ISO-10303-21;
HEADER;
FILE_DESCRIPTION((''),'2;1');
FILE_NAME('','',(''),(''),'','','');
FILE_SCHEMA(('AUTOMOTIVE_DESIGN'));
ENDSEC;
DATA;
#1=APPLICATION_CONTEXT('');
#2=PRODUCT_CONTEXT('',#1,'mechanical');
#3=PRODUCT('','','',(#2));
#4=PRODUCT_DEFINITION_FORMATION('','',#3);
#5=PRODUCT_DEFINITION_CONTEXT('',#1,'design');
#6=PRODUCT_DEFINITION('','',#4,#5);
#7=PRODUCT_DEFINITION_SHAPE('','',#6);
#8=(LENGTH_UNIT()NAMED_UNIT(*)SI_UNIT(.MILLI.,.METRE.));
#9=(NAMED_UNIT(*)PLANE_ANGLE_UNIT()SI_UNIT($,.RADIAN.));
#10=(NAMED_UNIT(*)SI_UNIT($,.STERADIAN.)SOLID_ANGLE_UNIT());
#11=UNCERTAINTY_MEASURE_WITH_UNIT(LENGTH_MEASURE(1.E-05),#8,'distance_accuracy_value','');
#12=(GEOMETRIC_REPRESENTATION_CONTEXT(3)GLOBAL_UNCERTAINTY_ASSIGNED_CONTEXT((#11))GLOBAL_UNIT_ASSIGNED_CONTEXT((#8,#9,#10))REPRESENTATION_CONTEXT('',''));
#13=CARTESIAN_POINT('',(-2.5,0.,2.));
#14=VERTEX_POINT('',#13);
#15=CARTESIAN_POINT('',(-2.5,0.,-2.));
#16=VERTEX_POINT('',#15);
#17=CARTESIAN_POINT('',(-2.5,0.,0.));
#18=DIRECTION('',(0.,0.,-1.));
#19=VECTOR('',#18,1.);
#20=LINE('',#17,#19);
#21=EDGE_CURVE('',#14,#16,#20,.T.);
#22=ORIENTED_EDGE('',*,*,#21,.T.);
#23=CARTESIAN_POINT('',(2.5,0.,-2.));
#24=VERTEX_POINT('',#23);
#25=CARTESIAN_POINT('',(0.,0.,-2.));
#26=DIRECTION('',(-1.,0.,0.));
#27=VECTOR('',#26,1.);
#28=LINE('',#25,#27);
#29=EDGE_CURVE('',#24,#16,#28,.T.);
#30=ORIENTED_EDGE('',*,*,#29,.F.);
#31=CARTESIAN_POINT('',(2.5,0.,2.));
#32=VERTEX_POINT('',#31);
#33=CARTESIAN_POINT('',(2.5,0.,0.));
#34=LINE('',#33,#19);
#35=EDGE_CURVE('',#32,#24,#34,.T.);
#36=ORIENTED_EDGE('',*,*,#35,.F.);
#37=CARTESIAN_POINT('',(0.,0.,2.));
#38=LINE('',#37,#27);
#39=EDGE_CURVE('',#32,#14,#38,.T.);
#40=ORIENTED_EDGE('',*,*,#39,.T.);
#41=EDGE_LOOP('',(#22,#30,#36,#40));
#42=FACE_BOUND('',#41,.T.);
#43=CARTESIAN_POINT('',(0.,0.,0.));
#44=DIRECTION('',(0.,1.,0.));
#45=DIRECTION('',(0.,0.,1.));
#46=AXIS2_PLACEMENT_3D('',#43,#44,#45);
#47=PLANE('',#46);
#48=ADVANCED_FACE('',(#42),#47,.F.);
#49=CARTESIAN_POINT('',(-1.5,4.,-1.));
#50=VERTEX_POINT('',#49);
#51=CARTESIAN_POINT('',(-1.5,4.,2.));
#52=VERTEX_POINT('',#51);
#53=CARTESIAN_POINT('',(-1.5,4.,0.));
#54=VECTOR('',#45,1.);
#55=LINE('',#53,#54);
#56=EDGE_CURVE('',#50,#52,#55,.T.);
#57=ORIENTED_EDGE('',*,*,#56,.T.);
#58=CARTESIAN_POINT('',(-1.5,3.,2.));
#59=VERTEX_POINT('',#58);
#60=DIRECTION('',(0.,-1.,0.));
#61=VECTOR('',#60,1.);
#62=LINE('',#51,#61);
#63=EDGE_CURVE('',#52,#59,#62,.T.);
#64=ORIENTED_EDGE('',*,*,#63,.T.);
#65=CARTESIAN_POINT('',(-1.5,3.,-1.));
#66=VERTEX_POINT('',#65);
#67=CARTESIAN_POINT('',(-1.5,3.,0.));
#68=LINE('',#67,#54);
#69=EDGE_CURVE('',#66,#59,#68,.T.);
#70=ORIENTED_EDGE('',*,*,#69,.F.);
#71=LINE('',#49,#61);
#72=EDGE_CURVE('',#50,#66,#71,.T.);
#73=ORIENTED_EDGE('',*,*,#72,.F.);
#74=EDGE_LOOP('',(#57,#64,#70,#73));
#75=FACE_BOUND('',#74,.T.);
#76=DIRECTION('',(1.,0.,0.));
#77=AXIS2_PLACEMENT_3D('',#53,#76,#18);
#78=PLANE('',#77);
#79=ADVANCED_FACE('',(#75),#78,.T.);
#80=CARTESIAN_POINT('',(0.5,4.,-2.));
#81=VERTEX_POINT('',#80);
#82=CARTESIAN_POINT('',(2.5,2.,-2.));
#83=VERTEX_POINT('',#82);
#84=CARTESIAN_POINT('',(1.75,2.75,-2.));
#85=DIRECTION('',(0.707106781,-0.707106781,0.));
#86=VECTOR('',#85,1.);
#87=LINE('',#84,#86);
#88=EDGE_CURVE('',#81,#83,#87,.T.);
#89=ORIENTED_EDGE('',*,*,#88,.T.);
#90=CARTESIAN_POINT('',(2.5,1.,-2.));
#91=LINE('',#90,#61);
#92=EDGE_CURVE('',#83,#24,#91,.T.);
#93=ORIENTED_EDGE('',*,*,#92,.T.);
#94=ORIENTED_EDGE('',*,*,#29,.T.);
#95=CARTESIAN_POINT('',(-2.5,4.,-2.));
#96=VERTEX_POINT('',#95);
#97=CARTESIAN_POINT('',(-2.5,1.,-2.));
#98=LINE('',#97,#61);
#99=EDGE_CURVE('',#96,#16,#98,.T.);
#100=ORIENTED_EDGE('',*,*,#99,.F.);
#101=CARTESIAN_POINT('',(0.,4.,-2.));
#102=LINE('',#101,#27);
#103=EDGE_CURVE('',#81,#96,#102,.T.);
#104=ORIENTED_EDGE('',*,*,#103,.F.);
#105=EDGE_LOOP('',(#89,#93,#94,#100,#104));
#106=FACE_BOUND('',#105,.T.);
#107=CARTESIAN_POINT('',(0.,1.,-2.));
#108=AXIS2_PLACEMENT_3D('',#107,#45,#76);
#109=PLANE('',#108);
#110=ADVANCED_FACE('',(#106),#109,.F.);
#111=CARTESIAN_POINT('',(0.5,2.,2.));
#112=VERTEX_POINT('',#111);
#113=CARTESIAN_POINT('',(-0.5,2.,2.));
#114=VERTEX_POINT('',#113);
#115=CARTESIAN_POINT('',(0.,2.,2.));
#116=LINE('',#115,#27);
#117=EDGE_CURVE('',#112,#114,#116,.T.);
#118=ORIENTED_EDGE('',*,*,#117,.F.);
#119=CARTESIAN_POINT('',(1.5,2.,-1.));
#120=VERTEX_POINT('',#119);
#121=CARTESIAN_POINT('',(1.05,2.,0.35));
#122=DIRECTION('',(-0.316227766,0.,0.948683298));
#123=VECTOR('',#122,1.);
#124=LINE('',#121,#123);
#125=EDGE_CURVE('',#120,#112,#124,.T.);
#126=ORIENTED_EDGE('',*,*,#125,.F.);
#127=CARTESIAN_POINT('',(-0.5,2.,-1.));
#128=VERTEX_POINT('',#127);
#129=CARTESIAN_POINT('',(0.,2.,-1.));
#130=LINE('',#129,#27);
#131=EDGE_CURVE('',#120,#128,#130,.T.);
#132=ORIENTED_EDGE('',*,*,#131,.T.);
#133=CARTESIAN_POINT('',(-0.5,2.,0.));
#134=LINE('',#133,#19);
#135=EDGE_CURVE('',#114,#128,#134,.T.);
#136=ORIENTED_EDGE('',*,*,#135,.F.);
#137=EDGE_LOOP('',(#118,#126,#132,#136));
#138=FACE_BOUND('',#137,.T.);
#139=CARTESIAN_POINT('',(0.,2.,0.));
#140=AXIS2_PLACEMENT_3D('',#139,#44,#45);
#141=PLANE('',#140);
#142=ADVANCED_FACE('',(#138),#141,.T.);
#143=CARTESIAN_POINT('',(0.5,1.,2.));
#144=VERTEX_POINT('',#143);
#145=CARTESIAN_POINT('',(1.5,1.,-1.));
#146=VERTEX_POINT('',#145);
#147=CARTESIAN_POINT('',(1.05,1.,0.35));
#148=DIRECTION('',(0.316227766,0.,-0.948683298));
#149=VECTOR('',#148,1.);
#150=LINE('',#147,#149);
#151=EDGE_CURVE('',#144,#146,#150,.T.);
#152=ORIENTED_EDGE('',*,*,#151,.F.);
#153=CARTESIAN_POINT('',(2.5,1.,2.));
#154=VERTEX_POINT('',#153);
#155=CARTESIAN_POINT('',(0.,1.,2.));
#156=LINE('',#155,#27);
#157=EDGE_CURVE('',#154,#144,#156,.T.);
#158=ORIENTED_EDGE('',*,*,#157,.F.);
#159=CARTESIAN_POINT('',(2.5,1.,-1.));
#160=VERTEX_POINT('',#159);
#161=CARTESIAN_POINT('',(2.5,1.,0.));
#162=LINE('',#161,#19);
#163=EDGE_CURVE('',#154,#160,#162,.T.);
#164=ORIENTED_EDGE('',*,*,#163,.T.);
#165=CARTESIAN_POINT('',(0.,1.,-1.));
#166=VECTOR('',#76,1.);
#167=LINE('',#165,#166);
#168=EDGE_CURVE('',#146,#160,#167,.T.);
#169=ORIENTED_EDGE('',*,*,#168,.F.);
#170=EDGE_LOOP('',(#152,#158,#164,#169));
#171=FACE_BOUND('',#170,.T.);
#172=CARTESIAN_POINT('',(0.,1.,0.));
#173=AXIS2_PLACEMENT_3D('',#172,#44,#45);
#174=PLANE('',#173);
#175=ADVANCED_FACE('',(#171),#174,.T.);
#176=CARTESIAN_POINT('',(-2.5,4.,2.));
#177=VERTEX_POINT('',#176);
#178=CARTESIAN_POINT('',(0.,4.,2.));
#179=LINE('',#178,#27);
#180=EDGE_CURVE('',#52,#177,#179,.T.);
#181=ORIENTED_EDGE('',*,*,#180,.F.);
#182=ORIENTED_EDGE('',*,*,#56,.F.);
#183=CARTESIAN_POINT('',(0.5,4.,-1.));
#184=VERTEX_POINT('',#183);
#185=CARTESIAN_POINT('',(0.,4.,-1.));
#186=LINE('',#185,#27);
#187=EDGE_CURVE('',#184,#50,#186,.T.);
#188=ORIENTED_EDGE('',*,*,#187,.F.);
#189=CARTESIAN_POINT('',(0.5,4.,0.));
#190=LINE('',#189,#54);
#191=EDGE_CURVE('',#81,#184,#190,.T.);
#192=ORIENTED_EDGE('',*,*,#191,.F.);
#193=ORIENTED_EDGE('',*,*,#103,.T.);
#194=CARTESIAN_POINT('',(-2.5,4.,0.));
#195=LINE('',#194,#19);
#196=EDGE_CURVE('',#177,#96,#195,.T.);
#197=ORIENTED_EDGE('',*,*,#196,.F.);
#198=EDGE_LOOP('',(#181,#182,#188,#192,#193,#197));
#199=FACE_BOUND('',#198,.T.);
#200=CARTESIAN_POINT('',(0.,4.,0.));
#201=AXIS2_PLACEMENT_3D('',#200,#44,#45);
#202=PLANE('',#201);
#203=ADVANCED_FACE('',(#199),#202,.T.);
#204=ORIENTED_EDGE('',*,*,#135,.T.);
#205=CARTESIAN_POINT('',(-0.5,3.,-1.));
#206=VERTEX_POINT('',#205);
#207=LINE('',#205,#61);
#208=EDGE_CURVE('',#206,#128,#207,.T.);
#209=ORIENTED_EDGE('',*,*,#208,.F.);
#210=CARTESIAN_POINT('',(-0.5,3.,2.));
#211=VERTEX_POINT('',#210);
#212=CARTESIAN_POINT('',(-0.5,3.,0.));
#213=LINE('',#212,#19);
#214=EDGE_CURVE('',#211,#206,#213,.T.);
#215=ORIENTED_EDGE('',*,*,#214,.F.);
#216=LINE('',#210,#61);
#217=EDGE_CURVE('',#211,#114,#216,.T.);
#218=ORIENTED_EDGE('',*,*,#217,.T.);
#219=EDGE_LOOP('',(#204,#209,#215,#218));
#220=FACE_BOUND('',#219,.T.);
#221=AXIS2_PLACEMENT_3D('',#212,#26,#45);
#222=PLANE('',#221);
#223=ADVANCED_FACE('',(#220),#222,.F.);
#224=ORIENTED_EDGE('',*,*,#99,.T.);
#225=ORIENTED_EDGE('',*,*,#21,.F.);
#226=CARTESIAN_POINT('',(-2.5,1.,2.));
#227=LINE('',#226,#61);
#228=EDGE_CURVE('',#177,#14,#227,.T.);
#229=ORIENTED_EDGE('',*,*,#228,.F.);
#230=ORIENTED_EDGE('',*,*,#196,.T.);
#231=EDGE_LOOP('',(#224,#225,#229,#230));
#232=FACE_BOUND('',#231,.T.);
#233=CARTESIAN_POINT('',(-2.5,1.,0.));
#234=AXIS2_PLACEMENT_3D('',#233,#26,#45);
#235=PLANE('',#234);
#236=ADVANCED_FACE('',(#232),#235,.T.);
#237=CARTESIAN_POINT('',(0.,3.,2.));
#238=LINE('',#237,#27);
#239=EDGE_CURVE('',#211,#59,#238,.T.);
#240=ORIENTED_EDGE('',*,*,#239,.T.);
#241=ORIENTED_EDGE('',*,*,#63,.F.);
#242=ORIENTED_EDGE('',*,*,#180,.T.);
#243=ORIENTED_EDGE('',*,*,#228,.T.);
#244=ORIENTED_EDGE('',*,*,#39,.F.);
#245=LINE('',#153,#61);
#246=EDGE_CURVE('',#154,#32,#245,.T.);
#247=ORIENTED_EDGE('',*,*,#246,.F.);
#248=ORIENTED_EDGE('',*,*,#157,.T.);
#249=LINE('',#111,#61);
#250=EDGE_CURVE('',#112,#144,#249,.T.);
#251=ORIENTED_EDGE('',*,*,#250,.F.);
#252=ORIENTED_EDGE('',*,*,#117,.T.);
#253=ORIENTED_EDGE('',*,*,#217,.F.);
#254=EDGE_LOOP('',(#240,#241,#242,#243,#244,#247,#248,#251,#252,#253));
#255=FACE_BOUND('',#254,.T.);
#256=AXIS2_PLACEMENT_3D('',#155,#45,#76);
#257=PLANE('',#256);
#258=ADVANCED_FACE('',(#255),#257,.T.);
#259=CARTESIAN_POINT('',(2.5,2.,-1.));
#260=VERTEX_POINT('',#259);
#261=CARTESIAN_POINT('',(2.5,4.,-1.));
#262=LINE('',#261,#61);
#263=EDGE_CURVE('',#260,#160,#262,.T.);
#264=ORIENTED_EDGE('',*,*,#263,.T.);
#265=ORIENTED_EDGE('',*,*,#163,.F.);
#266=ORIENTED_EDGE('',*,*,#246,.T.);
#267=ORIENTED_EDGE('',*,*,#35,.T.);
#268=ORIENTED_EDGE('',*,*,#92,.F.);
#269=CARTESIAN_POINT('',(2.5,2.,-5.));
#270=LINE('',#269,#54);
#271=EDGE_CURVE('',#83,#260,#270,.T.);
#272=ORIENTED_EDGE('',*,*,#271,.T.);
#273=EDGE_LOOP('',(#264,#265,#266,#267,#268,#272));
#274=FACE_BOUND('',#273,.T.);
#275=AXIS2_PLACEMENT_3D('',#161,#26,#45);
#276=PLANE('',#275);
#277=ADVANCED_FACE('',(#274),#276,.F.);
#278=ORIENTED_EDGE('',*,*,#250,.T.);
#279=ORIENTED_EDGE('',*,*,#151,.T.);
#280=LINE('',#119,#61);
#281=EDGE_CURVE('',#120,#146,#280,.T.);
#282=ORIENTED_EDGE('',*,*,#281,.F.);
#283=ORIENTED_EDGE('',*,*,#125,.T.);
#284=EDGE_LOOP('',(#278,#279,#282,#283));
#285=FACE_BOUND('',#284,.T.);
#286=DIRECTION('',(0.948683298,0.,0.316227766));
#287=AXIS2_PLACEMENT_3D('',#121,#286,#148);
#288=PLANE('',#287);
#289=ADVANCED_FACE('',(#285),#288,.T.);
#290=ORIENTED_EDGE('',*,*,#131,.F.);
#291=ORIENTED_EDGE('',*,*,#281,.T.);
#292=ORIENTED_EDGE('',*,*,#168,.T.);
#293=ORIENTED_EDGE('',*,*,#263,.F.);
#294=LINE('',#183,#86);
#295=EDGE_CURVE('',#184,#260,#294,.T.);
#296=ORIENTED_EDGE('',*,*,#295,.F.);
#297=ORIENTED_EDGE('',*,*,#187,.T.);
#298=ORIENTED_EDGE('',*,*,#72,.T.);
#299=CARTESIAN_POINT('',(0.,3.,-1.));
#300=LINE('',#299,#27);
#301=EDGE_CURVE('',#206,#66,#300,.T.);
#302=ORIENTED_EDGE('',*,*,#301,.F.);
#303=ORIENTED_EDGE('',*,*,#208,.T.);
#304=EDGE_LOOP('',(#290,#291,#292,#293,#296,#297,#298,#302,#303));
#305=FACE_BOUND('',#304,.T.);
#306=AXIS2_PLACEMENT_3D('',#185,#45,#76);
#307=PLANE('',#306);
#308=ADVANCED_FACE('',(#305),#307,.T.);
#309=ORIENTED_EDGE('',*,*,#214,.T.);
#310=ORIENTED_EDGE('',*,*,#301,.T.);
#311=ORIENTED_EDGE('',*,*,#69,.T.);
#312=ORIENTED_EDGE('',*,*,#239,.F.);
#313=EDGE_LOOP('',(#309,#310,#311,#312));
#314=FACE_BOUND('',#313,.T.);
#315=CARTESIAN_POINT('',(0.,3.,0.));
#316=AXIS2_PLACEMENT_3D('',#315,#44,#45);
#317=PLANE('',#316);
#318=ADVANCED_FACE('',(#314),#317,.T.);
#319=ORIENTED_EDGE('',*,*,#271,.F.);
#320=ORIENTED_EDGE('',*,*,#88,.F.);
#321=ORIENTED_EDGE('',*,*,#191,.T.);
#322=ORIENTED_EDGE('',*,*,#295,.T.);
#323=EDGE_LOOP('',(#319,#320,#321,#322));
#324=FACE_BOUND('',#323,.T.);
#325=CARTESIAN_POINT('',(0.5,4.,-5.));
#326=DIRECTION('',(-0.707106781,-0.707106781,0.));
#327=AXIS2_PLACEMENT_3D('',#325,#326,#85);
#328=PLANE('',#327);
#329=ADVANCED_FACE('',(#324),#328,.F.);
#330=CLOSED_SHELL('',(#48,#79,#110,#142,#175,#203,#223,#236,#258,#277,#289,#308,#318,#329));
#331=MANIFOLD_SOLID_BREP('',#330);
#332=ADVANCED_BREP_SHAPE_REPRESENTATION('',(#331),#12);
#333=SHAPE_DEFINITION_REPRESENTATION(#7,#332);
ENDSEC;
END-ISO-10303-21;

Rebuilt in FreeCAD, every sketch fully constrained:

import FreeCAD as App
import Part
import Sketcher

V = App.Vector
Q = App.Units.Quantity

doc = App.newDocument("Part")
body = doc.addObject("PartDesign::Body", "Body")

# Sketch on XZ plane
sketch1 = body.newObject("Sketcher::SketchObject", "Sketch")
sketch1.AttachmentSupport = (doc.getObject("XZ_Plane"), [""])
sketch1.MapMode = "FlatFace"
sketch1.addGeometry(Part.LineSegment(V(2.5, -2, 0), V(-2.5, -2, 0)), False)
sketch1.addGeometry(Part.LineSegment(V(-2.5, -2, 0), V(-2.5, 2, 0)), False)
sketch1.addGeometry(Part.LineSegment(V(-2.5, 2, 0), V(2.5, 2, 0)), False)
sketch1.addGeometry(Part.LineSegment(V(2.5, 2, 0), V(2.5, -2, 0)), False)
sketch1.addConstraint(Sketcher.Constraint("Coincident", 0, 2, 1, 1))
sketch1.addConstraint(Sketcher.Constraint("Coincident", 1, 2, 2, 1))
sketch1.addConstraint(Sketcher.Constraint("Coincident", 2, 2, 3, 1))
sketch1.addConstraint(Sketcher.Constraint("Coincident", 3, 2, 0, 1))
sketch1.addConstraint(Sketcher.Constraint("Horizontal", 0))
sketch1.addConstraint(Sketcher.Constraint("Vertical", 1))
sketch1.addConstraint(Sketcher.Constraint("Horizontal", 2))
sketch1.addConstraint(Sketcher.Constraint("Vertical", 3))
sketch1.addConstraint(Sketcher.Constraint("Symmetric", 0, 2, 2, 2, -1, 1))
sketch1.addConstraint(Sketcher.Constraint("DistanceX", 0, 2, 0, 1, Q("5 mm")))
sketch1.addConstraint(Sketcher.Constraint("DistanceY", 1, 1, 1, 2, Q("4 mm")))
pad1 = body.newObject("PartDesign::Pad", "Pad")
pad1.Profile = sketch1
pad1.Length = 1
pad1.Reversed = True

# Sketch on XZ plane
sketch2 = body.newObject("Sketcher::SketchObject", "Sketch001")
sketch2.AttachmentSupport = (doc.getObject("XZ_Plane"), [""])
sketch2.MapMode = "FlatFace"
sketch2.addGeometry(Part.LineSegment(V(0.5, 2, 0), V(1.5, -1, 0)), False)
sketch2.addGeometry(Part.LineSegment(V(1.5, -1, 0), V(-0.5, -1, 0)), False)
sketch2.addGeometry(Part.LineSegment(V(-0.5, -1, 0), V(-0.5, 2, 0)), False)
sketch2.addGeometry(Part.LineSegment(V(-0.5, 2, 0), V(0.5, 2, 0)), False)
sketch2.addConstraint(Sketcher.Constraint("Coincident", 0, 2, 1, 1))
sketch2.addConstraint(Sketcher.Constraint("Coincident", 1, 2, 2, 1))
sketch2.addConstraint(Sketcher.Constraint("Coincident", 2, 2, 3, 1))
sketch2.addConstraint(Sketcher.Constraint("Coincident", 3, 2, 0, 1))
sketch2.addConstraint(Sketcher.Constraint("Horizontal", 1))
sketch2.addConstraint(Sketcher.Constraint("Vertical", 2))
sketch2.addConstraint(Sketcher.Constraint("Horizontal", 3))
sketch2.addConstraint(Sketcher.Constraint("DistanceX", 1, 2, 1, 1, Q("2 mm")))
sketch2.addConstraint(Sketcher.Constraint("DistanceX", 3, 1, 3, 2, Q("1 mm")))
sketch2.addConstraint(Sketcher.Constraint("DistanceY", 2, 1, 2, 2, Q("3 mm")))
sketch2.addConstraint(Sketcher.Constraint("DistanceY", 0, 2, -1, 1, Q("1 mm")))
sketch2.addConstraint(Sketcher.Constraint("DistanceX", -1, 1, 0, 2, Q("1.5 mm")))
pad2 = body.newObject("PartDesign::Pad", "Pad001")
pad2.Profile = sketch2
pad2.Length = 2
pad2.Reversed = True

# Sketch on XZ plane
sketch3 = body.newObject("Sketcher::SketchObject", "Sketch002")
sketch3.AttachmentSupport = (doc.getObject("XZ_Plane"), [""])
sketch3.MapMode = "FlatFace"
sketch3.addGeometry(Part.LineSegment(V(-1.5, -1, 0), V(-1.5, 2, 0)), False)
sketch3.addGeometry(Part.LineSegment(V(-1.5, 2, 0), V(-0.5, 2, 0)), False)
sketch3.addGeometry(Part.LineSegment(V(-0.5, 2, 0), V(-0.5, -1, 0)), False)
sketch3.addGeometry(Part.LineSegment(V(-0.5, -1, 0), V(-1.5, -1, 0)), False)
sketch3.addConstraint(Sketcher.Constraint("Coincident", 0, 2, 1, 1))
sketch3.addConstraint(Sketcher.Constraint("Coincident", 1, 2, 2, 1))
sketch3.addConstraint(Sketcher.Constraint("Coincident", 2, 2, 3, 1))
sketch3.addConstraint(Sketcher.Constraint("Coincident", 3, 2, 0, 1))
sketch3.addConstraint(Sketcher.Constraint("Vertical", 0))
sketch3.addConstraint(Sketcher.Constraint("Horizontal", 1))
sketch3.addConstraint(Sketcher.Constraint("Vertical", 2))
sketch3.addConstraint(Sketcher.Constraint("Horizontal", 3))
sketch3.addConstraint(Sketcher.Constraint("DistanceX", 1, 1, 1, 2, Q("1 mm")))
sketch3.addConstraint(Sketcher.Constraint("DistanceY", 0, 1, 0, 2, Q("3 mm")))
sketch3.addConstraint(Sketcher.Constraint("DistanceY", -1, 1, 0, 2, Q("2 mm")))
sketch3.addConstraint(Sketcher.Constraint("DistanceX", 0, 2, -1, 1, Q("1.5 mm")))
pad3 = body.newObject("PartDesign::Pad", "Pad002")
pad3.Profile = sketch3
pad3.Length = 3
pad3.Reversed = True

# Sketch on XZ plane
sketch4 = body.newObject("Sketcher::SketchObject", "Sketch003")
sketch4.AttachmentSupport = (doc.getObject("XZ_Plane"), [""])
sketch4.MapMode = "FlatFace"
sketch4.addGeometry(Part.LineSegment(V(2.5, -1, 0), V(2.5, -2, 0)), False)
sketch4.addGeometry(Part.LineSegment(V(2.5, -2, 0), V(-2.5, -2, 0)), False)
sketch4.addGeometry(Part.LineSegment(V(-2.5, -2, 0), V(-2.5, 2, 0)), False)
sketch4.addGeometry(Part.LineSegment(V(-2.5, 2, 0), V(-1.5, 2, 0)), False)
sketch4.addGeometry(Part.LineSegment(V(-1.5, 2, 0), V(-1.5, -1, 0)), False)
sketch4.addGeometry(Part.LineSegment(V(-1.5, -1, 0), V(2.5, -1, 0)), False)
sketch4.addConstraint(Sketcher.Constraint("Coincident", 0, 2, 1, 1))
sketch4.addConstraint(Sketcher.Constraint("Coincident", 1, 2, 2, 1))
sketch4.addConstraint(Sketcher.Constraint("Coincident", 2, 2, 3, 1))
sketch4.addConstraint(Sketcher.Constraint("Coincident", 3, 2, 4, 1))
sketch4.addConstraint(Sketcher.Constraint("Coincident", 4, 2, 5, 1))
sketch4.addConstraint(Sketcher.Constraint("Coincident", 5, 2, 0, 1))
sketch4.addConstraint(Sketcher.Constraint("Vertical", 0))
sketch4.addConstraint(Sketcher.Constraint("Horizontal", 1))
sketch4.addConstraint(Sketcher.Constraint("Vertical", 2))
sketch4.addConstraint(Sketcher.Constraint("Horizontal", 3))
sketch4.addConstraint(Sketcher.Constraint("Vertical", 4))
sketch4.addConstraint(Sketcher.Constraint("Horizontal", 5))
sketch4.addConstraint(Sketcher.Constraint("Symmetric", 0, 2, 2, 2, -1, 1))
sketch4.addConstraint(Sketcher.Constraint("Equal", 3, 0))
sketch4.addConstraint(Sketcher.Constraint("Equal", 5, 2))
sketch4.addConstraint(Sketcher.Constraint("DistanceX", 1, 2, 1, 1, Q("5 mm")))
sketch4.addConstraint(Sketcher.Constraint("DistanceX", 3, 1, 3, 2, Q("1 mm")))
pad4 = body.newObject("PartDesign::Pad", "Pad003")
pad4.Profile = sketch4
pad4.Length = 4
pad4.Reversed = True

# Sketch on XY plane
sketch5 = body.newObject("Sketcher::SketchObject", "Sketch004")
sketch5.AttachmentSupport = (doc.getObject("XY_Plane"), [""])
sketch5.MapMode = "FlatFace"
sketch5.AttachmentOffset = App.Placement(V(0, 0, -1), App.Rotation())
sketch5.addGeometry(Part.LineSegment(V(2.5, 4, 0), V(0.5, 4, 0)), False)
sketch5.addGeometry(Part.LineSegment(V(0.5, 4, 0), V(2.5, 2, 0)), False)
sketch5.addGeometry(Part.LineSegment(V(2.5, 2, 0), V(2.5, 4, 0)), False)
sketch5.addConstraint(Sketcher.Constraint("Coincident", 0, 2, 1, 1))
sketch5.addConstraint(Sketcher.Constraint("Coincident", 1, 2, 2, 1))
sketch5.addConstraint(Sketcher.Constraint("Coincident", 2, 2, 0, 1))
sketch5.addConstraint(Sketcher.Constraint("Horizontal", 0))
sketch5.addConstraint(Sketcher.Constraint("Vertical", 2))
sketch5.addConstraint(Sketcher.Constraint("Equal", 0, 2))
sketch5.addConstraint(Sketcher.Constraint("DistanceX", 0, 2, 0, 1, Q("2 mm")))
sketch5.addConstraint(Sketcher.Constraint("DistanceY", -1, 1, 0, 2, Q("4 mm")))
sketch5.addConstraint(Sketcher.Constraint("DistanceX", -1, 1, 0, 2, Q("0.5 mm")))
pocket1 = body.newObject("PartDesign::Pocket", "Pocket")
pocket1.Profile = sketch5
pocket1.Length = 4

doc.recompute()
